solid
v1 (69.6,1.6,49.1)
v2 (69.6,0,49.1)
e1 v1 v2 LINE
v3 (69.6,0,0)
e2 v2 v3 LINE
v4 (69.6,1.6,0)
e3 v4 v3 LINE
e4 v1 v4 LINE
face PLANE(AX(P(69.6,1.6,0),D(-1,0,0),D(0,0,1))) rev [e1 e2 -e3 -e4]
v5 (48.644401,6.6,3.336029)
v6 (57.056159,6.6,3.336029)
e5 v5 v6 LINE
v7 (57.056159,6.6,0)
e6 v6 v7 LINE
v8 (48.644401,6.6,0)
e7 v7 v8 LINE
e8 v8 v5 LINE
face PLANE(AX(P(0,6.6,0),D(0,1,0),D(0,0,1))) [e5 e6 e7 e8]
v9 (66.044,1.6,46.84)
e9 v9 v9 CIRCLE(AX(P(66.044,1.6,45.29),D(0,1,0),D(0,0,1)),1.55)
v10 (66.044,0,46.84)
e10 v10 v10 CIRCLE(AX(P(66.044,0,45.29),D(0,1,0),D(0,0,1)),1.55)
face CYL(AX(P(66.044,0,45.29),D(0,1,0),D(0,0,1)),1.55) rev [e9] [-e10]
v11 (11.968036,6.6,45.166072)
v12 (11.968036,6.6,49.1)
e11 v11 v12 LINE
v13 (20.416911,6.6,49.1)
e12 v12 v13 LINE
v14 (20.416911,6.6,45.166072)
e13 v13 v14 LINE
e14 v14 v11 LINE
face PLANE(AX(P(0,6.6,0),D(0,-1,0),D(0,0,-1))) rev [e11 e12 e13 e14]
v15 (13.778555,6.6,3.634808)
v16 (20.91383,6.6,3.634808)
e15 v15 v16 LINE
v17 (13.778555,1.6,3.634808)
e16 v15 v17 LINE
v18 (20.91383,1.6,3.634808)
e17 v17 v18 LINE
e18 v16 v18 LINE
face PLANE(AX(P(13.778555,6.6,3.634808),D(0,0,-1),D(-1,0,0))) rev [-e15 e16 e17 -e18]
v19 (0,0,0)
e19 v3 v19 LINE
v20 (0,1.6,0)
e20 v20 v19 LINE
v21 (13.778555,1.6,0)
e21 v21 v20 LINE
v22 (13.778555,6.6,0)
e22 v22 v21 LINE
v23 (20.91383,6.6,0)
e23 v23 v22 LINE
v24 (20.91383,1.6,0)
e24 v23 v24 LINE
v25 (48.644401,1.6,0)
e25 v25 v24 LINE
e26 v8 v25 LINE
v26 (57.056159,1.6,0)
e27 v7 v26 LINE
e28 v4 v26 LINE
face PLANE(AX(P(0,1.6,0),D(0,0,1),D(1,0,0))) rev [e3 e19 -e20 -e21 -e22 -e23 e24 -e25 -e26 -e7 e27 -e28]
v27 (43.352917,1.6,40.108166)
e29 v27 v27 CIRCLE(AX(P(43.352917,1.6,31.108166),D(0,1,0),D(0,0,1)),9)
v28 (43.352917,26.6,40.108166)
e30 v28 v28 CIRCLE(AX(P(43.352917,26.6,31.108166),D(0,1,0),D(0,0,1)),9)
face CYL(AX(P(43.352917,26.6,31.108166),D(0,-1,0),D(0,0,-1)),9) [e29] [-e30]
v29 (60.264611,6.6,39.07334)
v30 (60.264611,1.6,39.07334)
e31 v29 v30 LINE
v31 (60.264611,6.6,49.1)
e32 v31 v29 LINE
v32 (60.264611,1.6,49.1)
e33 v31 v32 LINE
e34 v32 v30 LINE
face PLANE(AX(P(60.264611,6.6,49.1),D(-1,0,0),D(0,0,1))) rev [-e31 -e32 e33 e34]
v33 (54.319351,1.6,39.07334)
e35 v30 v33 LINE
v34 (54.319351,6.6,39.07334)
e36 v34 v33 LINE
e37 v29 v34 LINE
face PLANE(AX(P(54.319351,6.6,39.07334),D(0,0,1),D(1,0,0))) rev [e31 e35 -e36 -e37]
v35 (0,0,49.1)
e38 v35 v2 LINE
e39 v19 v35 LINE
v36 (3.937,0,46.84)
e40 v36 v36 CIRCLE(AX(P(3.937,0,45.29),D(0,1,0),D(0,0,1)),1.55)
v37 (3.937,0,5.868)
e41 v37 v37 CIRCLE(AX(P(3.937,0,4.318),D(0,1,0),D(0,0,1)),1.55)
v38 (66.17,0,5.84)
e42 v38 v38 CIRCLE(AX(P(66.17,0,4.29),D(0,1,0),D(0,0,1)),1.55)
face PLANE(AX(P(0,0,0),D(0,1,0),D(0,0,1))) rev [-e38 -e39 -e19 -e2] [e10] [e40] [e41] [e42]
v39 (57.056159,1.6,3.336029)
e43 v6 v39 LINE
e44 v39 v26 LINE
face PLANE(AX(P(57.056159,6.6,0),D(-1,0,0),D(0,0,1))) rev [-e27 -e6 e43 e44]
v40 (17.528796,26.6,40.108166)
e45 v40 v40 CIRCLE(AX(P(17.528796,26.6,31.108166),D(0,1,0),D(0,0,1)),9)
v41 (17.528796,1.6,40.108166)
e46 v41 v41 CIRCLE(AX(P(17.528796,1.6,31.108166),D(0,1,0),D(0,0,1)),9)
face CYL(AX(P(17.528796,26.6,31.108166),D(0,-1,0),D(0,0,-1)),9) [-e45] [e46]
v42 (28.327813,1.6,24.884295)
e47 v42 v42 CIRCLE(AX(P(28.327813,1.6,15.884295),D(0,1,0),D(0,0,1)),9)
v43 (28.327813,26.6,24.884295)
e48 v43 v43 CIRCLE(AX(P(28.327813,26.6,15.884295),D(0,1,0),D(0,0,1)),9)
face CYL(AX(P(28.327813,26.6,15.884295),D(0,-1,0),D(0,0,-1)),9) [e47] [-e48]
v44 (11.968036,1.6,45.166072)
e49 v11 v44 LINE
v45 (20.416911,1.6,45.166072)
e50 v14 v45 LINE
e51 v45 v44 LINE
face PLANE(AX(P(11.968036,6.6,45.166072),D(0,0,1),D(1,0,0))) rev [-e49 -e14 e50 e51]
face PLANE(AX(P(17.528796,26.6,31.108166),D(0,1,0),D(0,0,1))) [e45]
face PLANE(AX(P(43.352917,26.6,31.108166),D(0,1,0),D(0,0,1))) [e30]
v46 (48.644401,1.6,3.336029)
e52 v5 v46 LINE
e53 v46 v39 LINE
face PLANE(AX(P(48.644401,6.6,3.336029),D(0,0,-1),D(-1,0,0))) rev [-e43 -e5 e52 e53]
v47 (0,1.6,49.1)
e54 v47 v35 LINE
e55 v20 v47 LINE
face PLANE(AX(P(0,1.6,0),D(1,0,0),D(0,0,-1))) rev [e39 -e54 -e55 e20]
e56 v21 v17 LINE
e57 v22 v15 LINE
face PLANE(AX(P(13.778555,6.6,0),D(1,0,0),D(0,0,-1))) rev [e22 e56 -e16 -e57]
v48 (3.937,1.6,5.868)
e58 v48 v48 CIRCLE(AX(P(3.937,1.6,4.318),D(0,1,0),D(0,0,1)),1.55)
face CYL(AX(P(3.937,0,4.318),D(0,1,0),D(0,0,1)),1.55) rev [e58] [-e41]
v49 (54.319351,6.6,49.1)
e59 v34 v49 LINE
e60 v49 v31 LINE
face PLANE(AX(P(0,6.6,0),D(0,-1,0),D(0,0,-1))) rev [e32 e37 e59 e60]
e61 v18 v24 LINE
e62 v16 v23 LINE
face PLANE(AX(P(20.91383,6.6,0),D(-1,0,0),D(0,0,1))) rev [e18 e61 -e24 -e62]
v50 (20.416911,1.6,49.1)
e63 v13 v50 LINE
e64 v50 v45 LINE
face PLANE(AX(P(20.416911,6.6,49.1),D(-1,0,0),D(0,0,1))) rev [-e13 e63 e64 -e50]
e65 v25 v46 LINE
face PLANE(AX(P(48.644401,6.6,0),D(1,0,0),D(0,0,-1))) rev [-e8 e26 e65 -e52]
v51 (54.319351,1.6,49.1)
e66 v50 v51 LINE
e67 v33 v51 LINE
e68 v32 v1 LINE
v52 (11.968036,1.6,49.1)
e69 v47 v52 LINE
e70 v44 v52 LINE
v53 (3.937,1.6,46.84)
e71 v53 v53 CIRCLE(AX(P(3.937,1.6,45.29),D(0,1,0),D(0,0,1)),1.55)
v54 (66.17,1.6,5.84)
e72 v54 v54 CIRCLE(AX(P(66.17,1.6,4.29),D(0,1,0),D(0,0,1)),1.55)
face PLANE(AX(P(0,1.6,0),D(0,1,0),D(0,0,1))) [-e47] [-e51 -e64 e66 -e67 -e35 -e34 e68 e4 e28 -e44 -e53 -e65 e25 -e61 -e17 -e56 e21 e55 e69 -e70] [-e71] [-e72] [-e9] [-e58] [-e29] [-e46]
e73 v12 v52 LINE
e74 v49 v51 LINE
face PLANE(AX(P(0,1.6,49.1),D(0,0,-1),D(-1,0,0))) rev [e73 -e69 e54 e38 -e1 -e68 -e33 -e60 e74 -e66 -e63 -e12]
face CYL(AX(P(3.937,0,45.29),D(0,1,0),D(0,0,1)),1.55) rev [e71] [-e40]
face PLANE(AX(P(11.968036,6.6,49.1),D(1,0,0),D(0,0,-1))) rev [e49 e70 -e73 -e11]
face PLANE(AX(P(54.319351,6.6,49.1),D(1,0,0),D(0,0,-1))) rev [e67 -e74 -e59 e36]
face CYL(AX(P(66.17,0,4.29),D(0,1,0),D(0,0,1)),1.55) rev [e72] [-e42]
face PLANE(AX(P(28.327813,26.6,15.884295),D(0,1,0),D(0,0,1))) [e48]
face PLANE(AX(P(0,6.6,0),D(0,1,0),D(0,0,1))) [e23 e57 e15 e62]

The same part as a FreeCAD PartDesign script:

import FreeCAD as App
import Part
import Sketcher


def add_polygon(sketch, points):
    """Adds a closed chain of lines whose ends are joined by coincident constraints."""
    first, n = sketch.GeometryCount, len(points)
    for a, b in zip(points, points[1:] + points[:1]):
        sketch.addGeometry(Part.LineSegment(App.Vector(*a, 0), App.Vector(*b, 0)), False)
    for i in range(n):
        sketch.addConstraint(Sketcher.Constraint("Coincident", first + i, 2, first + (i + 1) % n, 1))

doc = App.newDocument("Part")
body = doc.addObject("PartDesign::Body", "Body")

# Sketch on XZ plane
sketch1 = doc.addObject("Sketcher::SketchObject", "Sketch")
body.addObject(sketch1)
sketch1.AttachmentSupport = (doc.XZ_Plane, [""])
sketch1.MapMode = "FlatFace"
add_polygon(sketch1, [(0, 0), (0, 49), (70, 49), (70, 0)])  # lines 0-3
sketch1.addConstraint([
    Sketcher.Constraint("Vertical", 0),
    Sketcher.Constraint("Horizontal", 1),
    Sketcher.Constraint("Vertical", 2),
    Sketcher.Constraint("Horizontal", 3),
    Sketcher.Constraint("Coincident", 3, 2, -1, 1),
    Sketcher.Constraint("DistanceX", 1, 1, 1, 2, 69.6),
    Sketcher.Constraint("DistanceY", 0, 1, 0, 2, 49.1),
])
pad1 = doc.addObject("PartDesign::Pad", "Pad")
body.addObject(pad1)
pad1.Profile = sketch1
pad1.Length = 1.6
pad1.Reversed = True

# Sketch on XZ plane
sketch2 = doc.addObject("Sketcher::SketchObject", "Sketch001")
body.addObject(sketch2)
sketch2.AttachmentSupport = (doc.XZ_Plane, [""])
sketch2.MapMode = "FlatFace"
sketch2.AttachmentOffset = App.Placement(App.Vector(0, 0, -1.6), App.Rotation())
sketch2.addGeometry([
    Part.Circle(App.Vector(18, 31, 0), App.Vector(0, 0, 1), 9),
    Part.Circle(App.Vector(28, 16, 0), App.Vector(0, 0, 1), 9),
    Part.Circle(App.Vector(43, 31, 0), App.Vector(0, 0, 1), 9),
], False)
sketch2.addConstraint([
    Sketcher.Constraint("Equal", 0, 1),
    Sketcher.Constraint("Equal", 1, 2),
    Sketcher.Constraint("Horizontal", 0, 3, 2, 3),
    Sketcher.Constraint("Diameter", 0, 18.0),
    Sketcher.Constraint("DistanceY", 1, 3, 0, 3, 15.223871),
    Sketcher.Constraint("DistanceX", 0, 3, 2, 3, 25.824121),
    Sketcher.Constraint("DistanceX", -1, 1, 0, 3, 17.528796),
    Sketcher.Constraint("DistanceY", -1, 1, 0, 3, 31.108166),
    Sketcher.Constraint("DistanceX", -1, 1, 1, 3, 28.327813),
])
pad2 = doc.addObject("PartDesign::Pad", "Pad001")
body.addObject(pad2)
pad2.Profile = sketch2
pad2.Length = 25
pad2.Reversed = True

# Sketch on XZ plane
sketch3 = doc.addObject("Sketcher::SketchObject", "Sketch002")
body.addObject(sketch3)
sketch3.AttachmentSupport = (doc.XZ_Plane, [""])
sketch3.MapMode = "FlatFace"
sketch3.AttachmentOffset = App.Placement(App.Vector(0, 0, -1.6), App.Rotation())
sketch3.addGeometry([
    Part.Circle(App.Vector(3.9, 4.3, 0), App.Vector(0, 0, 1), 1.6),
    Part.Circle(App.Vector(66.2, 4.3, 0), App.Vector(0, 0, 1), 1.6),
    Part.Circle(App.Vector(66, 45.3, 0), App.Vector(0, 0, 1), 1.6),
    Part.Circle(App.Vector(3.9, 45.3, 0), App.Vector(0, 0, 1), 1.6),
], False)
sketch3.addConstraint([
    Sketcher.Constraint("Equal", 0, 1),
    Sketcher.Constraint("Equal", 1, 2),
    Sketcher.Constraint("Equal", 2, 3),
    Sketcher.Constraint("Horizontal", 2, 3, 3, 3),
    Sketcher.Constraint("Vertical", 0, 3, 3, 3),
    Sketcher.Constraint("Diameter", 0, 3.1),
    Sketcher.Constraint("DistanceY", 1, 3, 2, 3, 41.0),
    Sketcher.Constraint("DistanceX", -1, 1, 1, 3, 66.17),
    Sketcher.Constraint("DistanceY", -1, 1, 1, 3, 4.29),
    Sketcher.Constraint("DistanceX", -1, 1, 0, 3, 3.937),
    Sketcher.Constraint("DistanceY", -1, 1, 0, 3, 4.318),
    Sketcher.Constraint("DistanceX", -1, 1, 2, 3, 66.044),
])
pocket1 = doc.addObject("PartDesign::Pocket", "Pocket")
body.addObject(pocket1)
pocket1.Profile = sketch3
pocket1.Type = "ThroughAll"
pocket1.Reversed = True

# Sketch on XZ plane
sketch4 = doc.addObject("Sketcher::SketchObject", "Sketch003")
body.addObject(sketch4)
sketch4.AttachmentSupport = (doc.XZ_Plane, [""])
sketch4.MapMode = "FlatFace"
sketch4.AttachmentOffset = App.Placement(App.Vector(0, 0, -1.6), App.Rotation())
add_polygon(sketch4, [(13.8, 0), (13.8, 3.6), (20.9, 3.6), (20.9, 0)])  # lines 0-3
add_polygon(sketch4, [(48.6, 0), (48.6, 3.3), (57.1, 3.3), (57.1, 0)])  # lines 4-7
add_polygon(sketch4, [(12, 45.2), (12, 49.1), (20.4, 49.1), (20.4, 45.2)])  # lines 8-11
add_polygon(sketch4, [(54.3, 39.1), (54.3, 49.1), (60.3, 49.1), (60.3, 39.1)])  # lines 12-15
sketch4.addConstraint([
    Sketcher.Constraint("Vertical", 0),
    Sketcher.Constraint("Horizontal", 1),
    Sketcher.Constraint("Vertical", 2),
    Sketcher.Constraint("Horizontal", 3),
    Sketcher.Constraint("Vertical", 4),
    Sketcher.Constraint("Horizontal", 5),
    Sketcher.Constraint("Vertical", 6),
    Sketcher.Constraint("Horizontal", 7),
    Sketcher.Constraint("Vertical", 8),
    Sketcher.Constraint("Horizontal", 9),
    Sketcher.Constraint("Vertical", 10),
    Sketcher.Constraint("Horizontal", 11),
    Sketcher.Constraint("Vertical", 12),
    Sketcher.Constraint("Horizontal", 13),
    Sketcher.Constraint("Vertical", 14),
    Sketcher.Constraint("Horizontal", 15),
    Sketcher.Constraint("PointOnObject", 2, 2, -1),
    Sketcher.Constraint("PointOnObject", 6, 2, -1),
    Sketcher.Constraint("Horizontal", 9, 2, 12, 2),
    Sketcher.Constraint("DistanceY", -1, 1, 8, 2, 49.1),
    Sketcher.Constraint("DistanceX", 13, 1, 13, 2, 5.94526),
    Sketcher.Constraint("DistanceY", 0, 1, 0, 2, 3.634808),
    Sketcher.Constraint("DistanceY", 4, 1, 4, 2, 3.336029),
    Sketcher.Constraint("DistanceY", 12, 1, 12, 2, 10.02666),
    Sketcher.Constraint("DistanceX", -1, 1, 4, 2, 48.644401),
    Sketcher.Constraint("DistanceX", 9, 2, 13, 2, 39.847701),
    Sketcher.Constraint("DistanceX", 1, 1, 1, 2, 7.135274),
    Sketcher.Constraint("DistanceX", 5, 1, 5, 2, 8.411757),
    Sketcher.Constraint("DistanceX", 9, 1, 9, 2, 8.448875),
    Sketcher.Constraint("DistanceY", 8, 1, 8, 2, 3.933928),
    Sketcher.Constraint("DistanceX", -1, 1, 1, 2, 20.91383),
    Sketcher.Constraint("DistanceX", -1, 1, 9, 2, 20.416911),
])
pad3 = doc.addObject("PartDesign::Pad", "Pad002")
body.addObject(pad3)
pad3.Profile = sketch4
pad3.Length = 5
pad3.Reversed = True

doc.recompute()
